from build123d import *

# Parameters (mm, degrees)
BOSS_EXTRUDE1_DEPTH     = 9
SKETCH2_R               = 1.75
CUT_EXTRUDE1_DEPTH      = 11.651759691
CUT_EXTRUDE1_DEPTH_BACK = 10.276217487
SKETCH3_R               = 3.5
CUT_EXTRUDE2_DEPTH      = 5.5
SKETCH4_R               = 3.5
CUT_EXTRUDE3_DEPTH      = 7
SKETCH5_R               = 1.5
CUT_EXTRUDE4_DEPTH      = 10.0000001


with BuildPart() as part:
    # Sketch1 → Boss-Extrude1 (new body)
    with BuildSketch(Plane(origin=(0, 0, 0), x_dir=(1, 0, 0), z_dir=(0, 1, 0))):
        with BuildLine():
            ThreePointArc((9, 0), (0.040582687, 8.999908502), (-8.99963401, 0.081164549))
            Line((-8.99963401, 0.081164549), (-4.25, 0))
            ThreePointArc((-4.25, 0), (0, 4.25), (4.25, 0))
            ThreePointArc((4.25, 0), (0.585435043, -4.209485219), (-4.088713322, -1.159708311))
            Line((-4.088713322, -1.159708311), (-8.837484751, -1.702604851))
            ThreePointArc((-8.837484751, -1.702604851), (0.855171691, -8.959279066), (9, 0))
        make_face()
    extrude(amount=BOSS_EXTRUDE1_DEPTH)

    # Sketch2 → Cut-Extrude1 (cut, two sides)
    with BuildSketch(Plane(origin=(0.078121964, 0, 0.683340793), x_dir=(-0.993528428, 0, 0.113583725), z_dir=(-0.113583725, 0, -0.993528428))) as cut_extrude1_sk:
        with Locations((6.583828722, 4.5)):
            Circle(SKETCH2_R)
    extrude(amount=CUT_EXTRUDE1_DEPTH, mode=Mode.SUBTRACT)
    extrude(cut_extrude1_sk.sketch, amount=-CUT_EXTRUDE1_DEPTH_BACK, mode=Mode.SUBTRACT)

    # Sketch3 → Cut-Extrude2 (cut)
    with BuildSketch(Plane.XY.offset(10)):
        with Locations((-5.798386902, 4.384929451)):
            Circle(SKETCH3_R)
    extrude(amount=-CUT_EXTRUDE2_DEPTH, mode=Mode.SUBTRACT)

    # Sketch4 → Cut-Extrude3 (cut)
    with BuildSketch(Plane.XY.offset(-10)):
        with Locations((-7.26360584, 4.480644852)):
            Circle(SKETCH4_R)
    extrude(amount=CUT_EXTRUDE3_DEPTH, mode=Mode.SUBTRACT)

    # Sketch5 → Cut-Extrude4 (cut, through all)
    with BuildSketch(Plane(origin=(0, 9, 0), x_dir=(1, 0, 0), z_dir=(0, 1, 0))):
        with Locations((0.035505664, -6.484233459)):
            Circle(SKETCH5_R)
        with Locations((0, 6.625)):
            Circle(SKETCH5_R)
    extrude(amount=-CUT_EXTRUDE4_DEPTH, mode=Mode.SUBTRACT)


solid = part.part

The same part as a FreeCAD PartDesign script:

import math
import FreeCAD as App
import Part
import Sketcher
from FreeCAD import Vector

doc = App.newDocument("Part")
body = doc.addObject("PartDesign::Body", "Body")

sketch1 = body.newObject("Sketcher::SketchObject", "Sketch")
sketch1.AttachmentSupport = (doc.getObject("XZ_Plane"), [""])
sketch1.MapMode = "FlatFace"
sketch1.addGeometry(Part.ArcOfCircle(Part.Circle(Vector(0, 0, 0), Vector(0, 0, 1), 9), math.radians(-179.483283), math.radians(0)), False)
sketch1.addGeometry(Part.LineSegment(Vector(-8.999634, -0.081165, 0), Vector(-4.25, 0, 0)), False)
sketch1.addGeometry(Part.ArcOfCircle(Part.Circle(Vector(0, 0, 0), Vector(0, 0, 1), 4.25), math.radians(180), math.radians(360)), False)
sketch1.addGeometry(Part.ArcOfCircle(Part.Circle(Vector(0, 0, 0), Vector(0, 0, 1), 4.25), math.radians(0), math.radians(164.164728)), False)
sketch1.addGeometry(Part.LineSegment(Vector(-4.088713, 1.159708, 0), Vector(-8.837485, 1.702605, 0)), False)
sketch1.addGeometry(Part.ArcOfCircle(Part.Circle(Vector(0, 0, 0), Vector(0, 0, 1), 9), math.radians(0), math.radians(169.095164)), False)
sketch1.addConstraint(Sketcher.Constraint("Coincident", 0, 1, 1, 1))
sketch1.addConstraint(Sketcher.Constraint("Coincident", 1, 2, 2, 1))
sketch1.addConstraint(Sketcher.Constraint("Tangent", 2, 2, 3, 1))
sketch1.addConstraint(Sketcher.Constraint("Coincident", 3, 2, 4, 1))
sketch1.addConstraint(Sketcher.Constraint("Coincident", 4, 2, 5, 2))
sketch1.addConstraint(Sketcher.Constraint("Tangent", 5, 1, 0, 2))
sketch1.addConstraint(Sketcher.Constraint("Coincident", 0, 3, -1, 1))
sketch1.addConstraint(Sketcher.Constraint("Coincident", 2, 3, -1, 1))
sketch1.addConstraint(Sketcher.Constraint("Equal", 2, 3))
sketch1.addConstraint(Sketcher.Constraint("Equal", 0, 5))
sketch1.addConstraint(Sketcher.Constraint("PointOnObject", 1, 2, -1))
sketch1.addConstraint(Sketcher.Constraint("PointOnObject", 2, 2, -1))
sketch1.addConstraint(Sketcher.Constraint("PointOnObject", 5, 1, -1))
sketch1.addConstraint(Sketcher.Constraint("Radius", 0, 9.0))
sketch1.addConstraint(Sketcher.Constraint("Radius", 2, 4.25))
sketch1.addConstraint(Sketcher.Constraint("DistanceY", -1, 1, 3, 2, 1.159708))
sketch1.addConstraint(Sketcher.Constraint("DistanceX", 0, 1, 4, 2, 0.162149))
sketch1.addConstraint(Sketcher.Constraint("DistanceY", 0, 1, 4, 2, 1.783769))
pad1 = body.newObject("PartDesign::Pad", "Pad")
pad1.Profile = sketch1
pad1.Length = 9
pad1.Reversed = True

sketch2 = body.newObject("Sketcher::SketchObject", "Sketch001")
sketch2.Placement = App.Placement(Vector(0.078122, 0, 0.683341), App.Rotation(Vector(-0.993528428, 0, 0.113583725), Vector(0, 1, 0), Vector(-0.113583725, 0, -0.993528428), "ZXY"))
sketch2.addGeometry(Part.Circle(Vector(6.583829, 4.5, 0), Vector(0, 0, 1), 1.75), False)
sketch2.addConstraint(Sketcher.Constraint("Diameter", 0, 3.5))
sketch2.addConstraint(Sketcher.Constraint("DistanceY", -1, 1, 0, 3, 4.5))
sketch2.addConstraint(Sketcher.Constraint("DistanceX", -1, 1, 0, 3, 6.583829))
pocket1 = body.newObject("PartDesign::Pocket", "Pocket")
pocket1.Profile = sketch2
pocket1.Type = "ThroughAll"
pocket1.Midplane = True

sketch3 = body.newObject("Sketcher::SketchObject", "Sketch002")
sketch3.AttachmentSupport = (doc.getObject("XY_Plane"), [""])
sketch3.MapMode = "FlatFace"
sketch3.AttachmentOffset = App.Placement(Vector(0, 0, 10), App.Rotation())
sketch3.addGeometry(Part.Circle(Vector(-5.798387, 4.384929, 0), Vector(0, 0, 1), 3.5), False)
sketch3.addConstraint(Sketcher.Constraint("Diameter", 0, 7.0))
sketch3.addConstraint(Sketcher.Constraint("DistanceY", -1, 1, 0, 3, 4.384929))
sketch3.addConstraint(Sketcher.Constraint("DistanceX", 0, 3, -1, 1, 5.798387))
pocket2 = body.newObject("PartDesign::Pocket", "Pocket001")
pocket2.Profile = sketch3
pocket2.Length = 5.5

sketch4 = body.newObject("Sketcher::SketchObject", "Sketch003")
sketch4.AttachmentSupport = (doc.getObject("XY_Plane"), [""])
sketch4.MapMode = "FlatFace"
sketch4.AttachmentOffset = App.Placement(Vector(0, 0, -10), App.Rotation())
sketch4.addGeometry(Part.Circle(Vector(-7.263606, 4.480645, 0), Vector(0, 0, 1), 3.5), False)
sketch4.addConstraint(Sketcher.Constraint("Diameter", 0, 7.0))
sketch4.addConstraint(Sketcher.Constraint("DistanceX", 0, 3, -1, 1, 7.263606))
sketch4.addConstraint(Sketcher.Constraint("DistanceY", -1, 1, 0, 3, 4.480645))
pocket3 = body.newObject("PartDesign::Pocket", "Pocket002")
pocket3.Profile = sketch4
pocket3.Length = 7
pocket3.Reversed = True

sketch5 = body.newObject("Sketcher::SketchObject", "Sketch004")
sketch5.AttachmentSupport = (doc.getObject("XZ_Plane"), [""])
sketch5.MapMode = "FlatFace"
sketch5.AttachmentOffset = App.Placement(Vector(0, 0, -9), App.Rotation())
sketch5.addGeometry(Part.Circle(Vector(0.035506, 6.484233, 0), Vector(0, 0, 1), 1.5), False)
sketch5.addGeometry(Part.Circle(Vector(0, -6.625, 0), Vector(0, 0, 1), 1.5), False)
sketch5.addConstraint(Sketcher.Constraint("Equal", 0, 1))
sketch5.addConstraint(Sketcher.Constraint("PointOnObject", 1, 3, -2))
sketch5.addConstraint(Sketcher.Constraint("Diameter", 0, 3.0))
sketch5.addConstraint(Sketcher.Constraint("DistanceY", 1, 3, -1, 1, 6.625))
sketch5.addConstraint(Sketcher.Constraint("DistanceX", -1, 1, 0, 3, 0.035506))
sketch5.addConstraint(Sketcher.Constraint("DistanceY", -1, 1, 0, 3, 6.484233))
pocket4 = body.newObject("PartDesign::Pocket", "Pocket003")
pocket4.Profile = sketch5
pocket4.Type = "ThroughAll"
pocket4.Reversed = True

doc.recompute()
